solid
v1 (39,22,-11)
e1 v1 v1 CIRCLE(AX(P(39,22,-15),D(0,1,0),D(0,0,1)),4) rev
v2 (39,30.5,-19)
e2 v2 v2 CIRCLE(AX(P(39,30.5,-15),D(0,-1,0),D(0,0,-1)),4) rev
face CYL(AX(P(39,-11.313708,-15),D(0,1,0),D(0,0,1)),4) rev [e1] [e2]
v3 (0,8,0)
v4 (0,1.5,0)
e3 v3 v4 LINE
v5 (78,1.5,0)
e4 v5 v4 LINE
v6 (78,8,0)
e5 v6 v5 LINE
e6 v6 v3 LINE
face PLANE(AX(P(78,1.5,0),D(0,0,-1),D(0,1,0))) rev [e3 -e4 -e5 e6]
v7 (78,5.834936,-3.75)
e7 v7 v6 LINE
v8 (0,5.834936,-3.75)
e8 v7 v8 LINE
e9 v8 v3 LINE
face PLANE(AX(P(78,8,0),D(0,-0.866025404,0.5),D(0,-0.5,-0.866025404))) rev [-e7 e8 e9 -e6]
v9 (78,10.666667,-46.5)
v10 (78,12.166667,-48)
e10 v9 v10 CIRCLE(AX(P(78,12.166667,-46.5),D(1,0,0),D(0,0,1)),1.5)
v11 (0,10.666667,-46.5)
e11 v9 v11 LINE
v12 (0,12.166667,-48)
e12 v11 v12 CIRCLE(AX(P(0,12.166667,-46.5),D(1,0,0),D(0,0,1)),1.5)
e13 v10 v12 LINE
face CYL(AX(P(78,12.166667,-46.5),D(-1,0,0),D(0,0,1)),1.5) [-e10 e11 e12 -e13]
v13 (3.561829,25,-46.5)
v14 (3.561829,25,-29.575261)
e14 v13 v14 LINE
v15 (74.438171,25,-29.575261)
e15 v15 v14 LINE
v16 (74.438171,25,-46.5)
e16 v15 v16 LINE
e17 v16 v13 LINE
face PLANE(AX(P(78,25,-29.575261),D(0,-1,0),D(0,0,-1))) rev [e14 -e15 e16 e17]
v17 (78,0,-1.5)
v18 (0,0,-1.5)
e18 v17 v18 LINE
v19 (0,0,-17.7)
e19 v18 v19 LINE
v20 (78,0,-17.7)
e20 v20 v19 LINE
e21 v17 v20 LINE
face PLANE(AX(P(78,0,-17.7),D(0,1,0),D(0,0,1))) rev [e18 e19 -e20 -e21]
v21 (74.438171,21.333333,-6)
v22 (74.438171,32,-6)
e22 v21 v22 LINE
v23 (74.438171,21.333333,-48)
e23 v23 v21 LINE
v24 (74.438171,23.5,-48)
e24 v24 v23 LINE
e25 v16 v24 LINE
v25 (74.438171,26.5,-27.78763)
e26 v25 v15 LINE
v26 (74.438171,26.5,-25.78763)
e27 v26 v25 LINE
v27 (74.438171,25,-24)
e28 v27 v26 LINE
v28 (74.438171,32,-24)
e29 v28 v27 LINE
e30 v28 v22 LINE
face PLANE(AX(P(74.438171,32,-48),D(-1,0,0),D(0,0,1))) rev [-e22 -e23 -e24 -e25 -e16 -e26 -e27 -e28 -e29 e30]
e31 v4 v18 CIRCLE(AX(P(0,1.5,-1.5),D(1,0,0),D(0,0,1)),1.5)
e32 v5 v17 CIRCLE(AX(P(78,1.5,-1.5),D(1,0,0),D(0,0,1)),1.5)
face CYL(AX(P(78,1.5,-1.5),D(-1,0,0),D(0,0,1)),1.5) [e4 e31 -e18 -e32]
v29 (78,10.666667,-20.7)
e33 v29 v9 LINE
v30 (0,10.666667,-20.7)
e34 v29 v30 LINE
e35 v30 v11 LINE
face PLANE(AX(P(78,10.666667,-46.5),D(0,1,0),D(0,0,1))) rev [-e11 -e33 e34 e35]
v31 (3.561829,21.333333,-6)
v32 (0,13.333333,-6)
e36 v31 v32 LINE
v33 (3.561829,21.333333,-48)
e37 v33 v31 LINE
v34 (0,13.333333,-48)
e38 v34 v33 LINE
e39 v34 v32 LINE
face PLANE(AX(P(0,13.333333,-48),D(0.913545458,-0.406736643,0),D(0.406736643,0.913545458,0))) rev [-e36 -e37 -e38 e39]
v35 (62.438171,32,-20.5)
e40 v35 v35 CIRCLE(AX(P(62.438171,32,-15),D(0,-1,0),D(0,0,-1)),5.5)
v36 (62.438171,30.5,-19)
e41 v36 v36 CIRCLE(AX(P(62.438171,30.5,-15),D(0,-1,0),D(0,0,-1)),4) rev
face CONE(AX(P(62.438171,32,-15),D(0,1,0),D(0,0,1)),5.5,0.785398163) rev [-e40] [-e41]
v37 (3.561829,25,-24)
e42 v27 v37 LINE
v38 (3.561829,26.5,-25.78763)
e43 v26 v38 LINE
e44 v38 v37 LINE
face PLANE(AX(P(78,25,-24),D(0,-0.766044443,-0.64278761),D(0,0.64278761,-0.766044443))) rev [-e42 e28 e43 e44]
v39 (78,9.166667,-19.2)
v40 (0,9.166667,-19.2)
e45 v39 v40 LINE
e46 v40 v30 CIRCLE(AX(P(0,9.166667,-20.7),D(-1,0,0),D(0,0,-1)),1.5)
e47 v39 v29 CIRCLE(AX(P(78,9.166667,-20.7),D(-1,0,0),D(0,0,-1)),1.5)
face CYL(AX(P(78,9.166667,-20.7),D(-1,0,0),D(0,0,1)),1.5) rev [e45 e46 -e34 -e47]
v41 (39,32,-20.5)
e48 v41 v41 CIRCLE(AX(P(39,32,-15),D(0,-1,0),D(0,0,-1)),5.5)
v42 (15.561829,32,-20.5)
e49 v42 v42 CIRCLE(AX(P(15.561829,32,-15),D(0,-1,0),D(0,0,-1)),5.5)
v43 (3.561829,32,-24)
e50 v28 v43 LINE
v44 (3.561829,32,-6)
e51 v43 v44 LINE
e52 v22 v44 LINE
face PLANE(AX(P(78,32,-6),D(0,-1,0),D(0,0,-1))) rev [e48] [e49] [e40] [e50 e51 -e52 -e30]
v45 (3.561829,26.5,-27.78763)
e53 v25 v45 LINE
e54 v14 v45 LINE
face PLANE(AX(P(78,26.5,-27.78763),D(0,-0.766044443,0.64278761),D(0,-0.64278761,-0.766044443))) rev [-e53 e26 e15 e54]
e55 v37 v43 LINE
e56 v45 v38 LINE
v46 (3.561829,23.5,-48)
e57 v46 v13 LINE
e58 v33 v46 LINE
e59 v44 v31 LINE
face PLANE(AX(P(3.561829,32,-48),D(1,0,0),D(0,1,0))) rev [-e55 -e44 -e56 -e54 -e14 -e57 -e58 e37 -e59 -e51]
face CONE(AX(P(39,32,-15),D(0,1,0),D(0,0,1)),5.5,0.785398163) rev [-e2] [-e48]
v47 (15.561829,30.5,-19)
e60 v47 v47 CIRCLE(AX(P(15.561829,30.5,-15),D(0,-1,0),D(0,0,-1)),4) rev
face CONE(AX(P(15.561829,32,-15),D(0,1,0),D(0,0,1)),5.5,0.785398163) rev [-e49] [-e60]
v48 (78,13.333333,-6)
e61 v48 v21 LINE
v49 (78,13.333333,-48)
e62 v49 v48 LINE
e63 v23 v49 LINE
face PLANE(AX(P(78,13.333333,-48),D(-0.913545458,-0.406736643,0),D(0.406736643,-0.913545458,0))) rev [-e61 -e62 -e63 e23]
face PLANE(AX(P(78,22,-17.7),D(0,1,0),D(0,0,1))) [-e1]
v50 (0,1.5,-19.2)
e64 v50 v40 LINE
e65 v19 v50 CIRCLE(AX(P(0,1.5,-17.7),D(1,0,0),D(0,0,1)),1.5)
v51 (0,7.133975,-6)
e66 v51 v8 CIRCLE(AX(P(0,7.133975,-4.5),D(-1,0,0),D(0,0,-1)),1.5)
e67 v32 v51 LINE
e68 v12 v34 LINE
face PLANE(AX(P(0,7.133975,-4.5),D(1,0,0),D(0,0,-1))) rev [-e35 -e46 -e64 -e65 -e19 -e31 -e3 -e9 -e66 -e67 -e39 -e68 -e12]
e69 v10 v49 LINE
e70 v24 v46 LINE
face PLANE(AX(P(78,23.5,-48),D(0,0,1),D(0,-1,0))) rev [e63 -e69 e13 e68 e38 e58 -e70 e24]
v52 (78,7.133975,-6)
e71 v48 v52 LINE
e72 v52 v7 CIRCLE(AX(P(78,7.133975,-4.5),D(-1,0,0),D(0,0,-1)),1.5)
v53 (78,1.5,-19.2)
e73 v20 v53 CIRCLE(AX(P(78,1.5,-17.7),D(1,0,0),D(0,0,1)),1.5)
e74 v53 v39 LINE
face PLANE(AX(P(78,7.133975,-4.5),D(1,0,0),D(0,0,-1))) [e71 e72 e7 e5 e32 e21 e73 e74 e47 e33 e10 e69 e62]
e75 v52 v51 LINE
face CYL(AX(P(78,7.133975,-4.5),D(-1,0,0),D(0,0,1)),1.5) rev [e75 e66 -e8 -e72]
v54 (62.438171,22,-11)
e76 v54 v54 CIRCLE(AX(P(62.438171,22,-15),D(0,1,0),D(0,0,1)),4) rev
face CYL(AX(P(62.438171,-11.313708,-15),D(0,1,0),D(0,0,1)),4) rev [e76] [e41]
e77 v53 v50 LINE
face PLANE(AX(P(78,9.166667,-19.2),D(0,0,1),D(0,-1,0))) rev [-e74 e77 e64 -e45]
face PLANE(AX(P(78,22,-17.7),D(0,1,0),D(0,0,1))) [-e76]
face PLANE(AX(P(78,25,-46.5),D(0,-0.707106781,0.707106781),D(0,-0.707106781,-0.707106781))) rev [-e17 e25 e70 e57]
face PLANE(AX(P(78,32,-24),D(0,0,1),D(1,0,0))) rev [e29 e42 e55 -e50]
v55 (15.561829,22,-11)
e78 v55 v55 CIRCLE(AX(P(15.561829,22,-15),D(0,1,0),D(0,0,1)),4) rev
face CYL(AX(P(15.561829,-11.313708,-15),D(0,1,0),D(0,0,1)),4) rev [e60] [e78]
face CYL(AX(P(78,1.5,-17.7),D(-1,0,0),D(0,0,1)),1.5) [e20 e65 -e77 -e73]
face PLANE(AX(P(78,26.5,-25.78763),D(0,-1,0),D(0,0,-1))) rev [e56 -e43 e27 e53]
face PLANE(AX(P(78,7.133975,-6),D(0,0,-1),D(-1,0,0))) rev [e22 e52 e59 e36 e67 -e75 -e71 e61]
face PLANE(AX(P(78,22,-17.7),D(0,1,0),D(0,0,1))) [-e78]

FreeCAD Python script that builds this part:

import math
import FreeCAD as App
import Part
import Sketcher
from FreeCAD import Vector
Q = App.Units.Quantity


def edges_at(feature, points):
    """Names of the edges that pass closest to the given points."""
    edges = feature.Shape.Edges
    near = lambda p: min(range(len(edges)), key=lambda i: edges[i].distToShape(Part.Vertex(*p))[0])
    return sorted({f"Edge{near(p) + 1}" for p in points})

doc = App.newDocument("Part")
body = doc.addObject("PartDesign::Body", "Body")

sketch1 = doc.addObject("Sketcher::SketchObject", "Sketch")
body.addObject(sketch1)
sketch1.AttachmentSupport = (doc.YZ_Plane, [""])
sketch1.MapMode = "FlatFace"
sketch1.addGeometry(Part.LineSegment(Vector(5.834936, -3.75, 0), Vector(8, 0, 0)), False)
sketch1.addGeometry(Part.LineSegment(Vector(8, 0, 0), Vector(1.5, 0, 0)), False)
sketch1.addGeometry(Part.ArcOfCircle(Part.Circle(Vector(1.5, -1.5, 0), Vector(0, 0, 1), 1.5), math.radians(90), math.radians(180)), False)
sketch1.addGeometry(Part.LineSegment(Vector(0, -1.5, 0), Vector(0, -17.7, 0)), False)
sketch1.addGeometry(Part.ArcOfCircle(Part.Circle(Vector(1.5, -17.7, 0), Vector(0, 0, 1), 1.5), math.radians(180), math.radians(270)), False)
sketch1.addGeometry(Part.LineSegment(Vector(1.5, -19.2, 0), Vector(9.166667, -19.2, 0)), False)
sketch1.addGeometry(Part.ArcOfCircle(Part.Circle(Vector(9.166667, -20.7, 0), Vector(0, 0, 1), 1.5), math.radians(0), math.radians(90)), False)
sketch1.addGeometry(Part.LineSegment(Vector(10.666667, -20.7, 0), Vector(10.666667, -46.5, 0)), False)
sketch1.addGeometry(Part.ArcOfCircle(Part.Circle(Vector(12.166667, -46.5, 0), Vector(0, 0, 1), 1.5), math.radians(180), math.radians(270)), False)
sketch1.addGeometry(Part.LineSegment(Vector(12.166667, -48, 0), Vector(23.5, -48, 0)), False)
sketch1.addGeometry(Part.LineSegment(Vector(23.5, -48, 0), Vector(25, -46.5, 0)), False)
sketch1.addGeometry(Part.LineSegment(Vector(25, -46.5, 0), Vector(25, -29.575261, 0)), False)
sketch1.addGeometry(Part.LineSegment(Vector(25, -29.575261, 0), Vector(26.5, -27.78763, 0)), False)
sketch1.addGeometry(Part.LineSegment(Vector(26.5, -27.78763, 0), Vector(26.5, -25.78763, 0)), False)
sketch1.addGeometry(Part.LineSegment(Vector(26.5, -25.78763, 0), Vector(25, -24, 0)), False)
sketch1.addGeometry(Part.LineSegment(Vector(25, -24, 0), Vector(32, -24, 0)), False)
sketch1.addGeometry(Part.LineSegment(Vector(32, -24, 0), Vector(32, -6, 0)), False)
sketch1.addGeometry(Part.LineSegment(Vector(32, -6, 0), Vector(7.133975, -6, 0)), False)
sketch1.addGeometry(Part.ArcOfCircle(Part.Circle(Vector(7.133975, -4.5, 0), Vector(0, 0, 1), 1.5), math.radians(150), math.radians(270)), False)
sketch1.addConstraint(Sketcher.Constraint("Coincident", 0, 2, 1, 1))
sketch1.addConstraint(Sketcher.Constraint("Tangent", 1, 2, 2, 1))
sketch1.addConstraint(Sketcher.Constraint("Tangent", 2, 2, 3, 1))
sketch1.addConstraint(Sketcher.Constraint("Tangent", 3, 2, 4, 1))
sketch1.addConstraint(Sketcher.Constraint("Tangent", 4, 2, 5, 1))
sketch1.addConstraint(Sketcher.Constraint("Tangent", 5, 2, 6, 2))
sketch1.addConstraint(Sketcher.Constraint("Tangent", 6, 1, 7, 1))
sketch1.addConstraint(Sketcher.Constraint("Tangent", 7, 2, 8, 1))
sketch1.addConstraint(Sketcher.Constraint("Tangent", 8, 2, 9, 1))
sketch1.addConstraint(Sketcher.Constraint("Coincident", 9, 2, 10, 1))
sketch1.addConstraint(Sketcher.Constraint("Coincident", 10, 2, 11, 1))
sketch1.addConstraint(Sketcher.Constraint("Coincident", 11, 2, 12, 1))
sketch1.addConstraint(Sketcher.Constraint("Coincident", 12, 2, 13, 1))
sketch1.addConstraint(Sketcher.Constraint("Coincident", 13, 2, 14, 1))
sketch1.addConstraint(Sketcher.Constraint("Coincident", 14, 2, 15, 1))
sketch1.addConstraint(Sketcher.Constraint("Coincident", 15, 2, 16, 1))
sketch1.addConstraint(Sketcher.Constraint("Coincident", 16, 2, 17, 1))
sketch1.addConstraint(Sketcher.Constraint("Tangent", 17, 2, 18, 2))
sketch1.addConstraint(Sketcher.Constraint("Tangent", 18, 1, 0, 1))
sketch1.addConstraint(Sketcher.Constraint("Horizontal", 1))
sketch1.addConstraint(Sketcher.Constraint("Vertical", 3))
sketch1.addConstraint(Sketcher.Constraint("Horizontal", 5))
sketch1.addConstraint(Sketcher.Constraint("Vertical", 7))
sketch1.addConstraint(Sketcher.Constraint("Horizontal", 9))
sketch1.addConstraint(Sketcher.Constraint("Vertical", 11))
sketch1.addConstraint(Sketcher.Constraint("Vertical", 13))
sketch1.addConstraint(Sketcher.Constraint("Horizontal", 15))
sketch1.addConstraint(Sketcher.Constraint("Vertical", 16))
sketch1.addConstraint(Sketcher.Constraint("Horizontal", 17))
sketch1.addConstraint(Sketcher.Constraint("Equal", 2, 4))
sketch1.addConstraint(Sketcher.Constraint("Equal", 4, 6))
sketch1.addConstraint(Sketcher.Constraint("Equal", 6, 8))
sketch1.addConstraint(Sketcher.Constraint("Equal", 8, 18))
sketch1.addConstraint(Sketcher.Constraint("PointOnObject", 0, 2, -1))
sketch1.addConstraint(Sketcher.Constraint("PointOnObject", 2, 2, -2))
sketch1.addConstraint(Sketcher.Constraint("Horizontal", 7, 2, 10, 2))
sketch1.addConstraint(Sketcher.Constraint("Vertical", 11, 2, 14, 2))
sketch1.addConstraint(Sketcher.Constraint("Equal", 12, 14))
sketch1.addConstraint(Sketcher.Constraint("Radius", 2, Q("1.5 mm")))
sketch1.addConstraint(Sketcher.Constraint("DistanceX", 15, 1, 15, 2, Q("7 mm")))
sketch1.addConstraint(Sketcher.Constraint("DistanceY", 13, 1, 13, 2, Q("2 mm")))
sketch1.addConstraint(Sketcher.Constraint("DistanceY", 16, 1, 16, 2, Q("18 mm")))
sketch1.addConstraint(Sketcher.Constraint("Angle", 0, Q("60 deg")))
sketch1.addConstraint(Sketcher.Constraint("Angle", 10, Q("45 deg")))
sketch1.addConstraint(Sketcher.Constraint("Angle", 12, Q("50 deg")))
sketch1.addConstraint(Sketcher.Constraint("DistanceX", 1, 2, 1, 1, Q("6.5 mm")))
sketch1.addConstraint(Sketcher.Constraint("DistanceY", 3, 2, 3, 1, Q("16.2 mm")))
sketch1.addConstraint(Sketcher.Constraint("DistanceY", 7, 2, 7, 1, Q("25.8 mm")))
sketch1.addConstraint(Sketcher.Constraint("DistanceX", -1, 1, 10, 2, Q("25 mm")))
sketch1.addConstraint(Sketcher.Constraint("DistanceY", 14, 2, -1, 1, Q("24 mm")))
sketch1.addConstraint(Sketcher.Constraint("DistanceX", -1, 1, 12, 2, Q("26.5 mm")))
sketch1.addConstraint(Sketcher.Constraint("DistanceX", 5, 1, 5, 2, Q("7.666667 mm")))
pad1 = doc.addObject("PartDesign::Pad", "Pad")
body.addObject(pad1)
pad1.Profile = sketch1
pad1.Length = 78

sketch2 = doc.addObject("Sketcher::SketchObject", "Sketch001")
body.addObject(sketch2)
sketch2.AttachmentSupport = (doc.XY_Plane, [""])
sketch2.MapMode = "FlatFace"
sketch2.addGeometry(Part.LineSegment(Vector(3.561829, 21.333333, 0), Vector(3.561829, 32, 0)), False)
sketch2.addGeometry(Part.LineSegment(Vector(3.561829, 32, 0), Vector(0, 32, 0)), False)
sketch2.addGeometry(Part.LineSegment(Vector(0, 32, 0), Vector(0, 13.333333, 0)), False)
sketch2.addGeometry(Part.LineSegment(Vector(0, 13.333333, 0), Vector(3.561829, 21.333333, 0)), False)
sketch2.addGeometry(Part.LineSegment(Vector(74.438171, 21.333333, 0), Vector(78, 13.333333, 0)), False)
sketch2.addGeometry(Part.LineSegment(Vector(78, 13.333333, 0), Vector(78, 32, 0)), False)
sketch2.addGeometry(Part.LineSegment(Vector(78, 32, 0), Vector(74.438171, 32, 0)), False)
sketch2.addGeometry(Part.LineSegment(Vector(74.438171, 32, 0), Vector(74.438171, 21.333333, 0)), False)
sketch2.addConstraint(Sketcher.Constraint("Coincident", 0, 2, 1, 1))
sketch2.addConstraint(Sketcher.Constraint("Coincident", 1, 2, 2, 1))
sketch2.addConstraint(Sketcher.Constraint("Coincident", 2, 2, 3, 1))
sketch2.addConstraint(Sketcher.Constraint("Coincident", 3, 2, 0, 1))
sketch2.addConstraint(Sketcher.Constraint("Coincident", 4, 2, 5, 1))
sketch2.addConstraint(Sketcher.Constraint("Coincident", 5, 2, 6, 1))
sketch2.addConstraint(Sketcher.Constraint("Coincident", 6, 2, 7, 1))
sketch2.addConstraint(Sketcher.Constraint("Coincident", 7, 2, 4, 1))
sketch2.addConstraint(Sketcher.Constraint("Vertical", 0))
sketch2.addConstraint(Sketcher.Constraint("Horizontal", 1))
sketch2.addConstraint(Sketcher.Constraint("Vertical", 2))
sketch2.addConstraint(Sketcher.Constraint("Vertical", 5))
sketch2.addConstraint(Sketcher.Constraint("Horizontal", 6))
sketch2.addConstraint(Sketcher.Constraint("Vertical", 7))
sketch2.addConstraint(Sketcher.Constraint("PointOnObject", 1, 2, -2))
sketch2.addConstraint(Sketcher.Constraint("Horizontal", 2, 2, 4, 2))
sketch2.addConstraint(Sketcher.Constraint("Horizontal", 1, 2, 5, 2))
sketch2.addConstraint(Sketcher.Constraint("Horizontal", 3, 2, 7, 2))
sketch2.addConstraint(Sketcher.Constraint("Equal", 1, 6))
sketch2.addConstraint(Sketcher.Constraint("Angle", 3, Q("66 deg")))
sketch2.addConstraint(Sketcher.Constraint("DistanceY", -1, 1, 0, 2, Q("32 mm")))
sketch2.addConstraint(Sketcher.Constraint("DistanceX", -1, 1, 4, 2, Q("78 mm")))
sketch2.addConstraint(Sketcher.Constraint("DistanceY", 2, 2, 3, 2, Q("8 mm")))
sketch2.addConstraint(Sketcher.Constraint("DistanceY", 0, 1, 0, 2, Q("10.666667 mm")))
pocket1 = doc.addObject("PartDesign::Pocket", "Pocket")
body.addObject(pocket1)
pocket1.Profile = sketch2
pocket1.Type = "ThroughAll"
pocket1.Midplane = True

sketch3 = doc.addObject("Sketcher::SketchObject", "Sketch002")
body.addObject(sketch3)
sketch3.AttachmentSupport = (doc.XZ_Plane, [""])
sketch3.MapMode = "FlatFace"
sketch3.AttachmentOffset = App.Placement(Vector(0, 0, -32), App.Rotation())
sketch3.addGeometry(Part.Circle(Vector(15.561829, -15, 0), Vector(0, 0, 1), 4), False)
sketch3.addGeometry(Part.Circle(Vector(62.438171, -15, 0), Vector(0, 0, 1), 4), False)
sketch3.addGeometry(Part.Circle(Vector(39, -15, 0), Vector(0, 0, 1), 4), False)
sketch3.addConstraint(Sketcher.Constraint("Equal", 0, 1))
sketch3.addConstraint(Sketcher.Constraint("Equal", 1, 2))
sketch3.addConstraint(Sketcher.Constraint("Horizontal", 0, 3, 1, 3))
sketch3.addConstraint(Sketcher.Constraint("Horizontal", 1, 3, 2, 3))
sketch3.addConstraint(Sketcher.Constraint("Diameter", 0, Q("8 mm")))
sketch3.addConstraint(Sketcher.Constraint("DistanceY", 0, 3, -1, 1, Q("15 mm")))
sketch3.addConstraint(Sketcher.Constraint("DistanceX", -1, 1, 2, 3, Q("39 mm")))
sketch3.addConstraint(Sketcher.Constraint("DistanceX", -1, 1, 0, 3, Q("15.561829 mm")))
sketch3.addConstraint(Sketcher.Constraint("DistanceX", -1, 1, 1, 3, Q("62.438171 mm")))
pocket2 = doc.addObject("PartDesign::Pocket", "Pocket001")
body.addObject(pocket2)
pocket2.Profile = sketch3
pocket2.Type = "TwoLengths"
pocket2.Length = 98.015463
pocket2.Length2 = 10
doc.recompute()

chamfer = doc.addObject("PartDesign::Chamfer", "Chamfer")
body.addObject(chamfer)
chamfer.Base = (pocket2, edges_at(pocket2, [(15.562, 32, -19), (62.438, 32, -19), (39, 32, -19)]))
chamfer.Size = 1.5

doc.recompute()
